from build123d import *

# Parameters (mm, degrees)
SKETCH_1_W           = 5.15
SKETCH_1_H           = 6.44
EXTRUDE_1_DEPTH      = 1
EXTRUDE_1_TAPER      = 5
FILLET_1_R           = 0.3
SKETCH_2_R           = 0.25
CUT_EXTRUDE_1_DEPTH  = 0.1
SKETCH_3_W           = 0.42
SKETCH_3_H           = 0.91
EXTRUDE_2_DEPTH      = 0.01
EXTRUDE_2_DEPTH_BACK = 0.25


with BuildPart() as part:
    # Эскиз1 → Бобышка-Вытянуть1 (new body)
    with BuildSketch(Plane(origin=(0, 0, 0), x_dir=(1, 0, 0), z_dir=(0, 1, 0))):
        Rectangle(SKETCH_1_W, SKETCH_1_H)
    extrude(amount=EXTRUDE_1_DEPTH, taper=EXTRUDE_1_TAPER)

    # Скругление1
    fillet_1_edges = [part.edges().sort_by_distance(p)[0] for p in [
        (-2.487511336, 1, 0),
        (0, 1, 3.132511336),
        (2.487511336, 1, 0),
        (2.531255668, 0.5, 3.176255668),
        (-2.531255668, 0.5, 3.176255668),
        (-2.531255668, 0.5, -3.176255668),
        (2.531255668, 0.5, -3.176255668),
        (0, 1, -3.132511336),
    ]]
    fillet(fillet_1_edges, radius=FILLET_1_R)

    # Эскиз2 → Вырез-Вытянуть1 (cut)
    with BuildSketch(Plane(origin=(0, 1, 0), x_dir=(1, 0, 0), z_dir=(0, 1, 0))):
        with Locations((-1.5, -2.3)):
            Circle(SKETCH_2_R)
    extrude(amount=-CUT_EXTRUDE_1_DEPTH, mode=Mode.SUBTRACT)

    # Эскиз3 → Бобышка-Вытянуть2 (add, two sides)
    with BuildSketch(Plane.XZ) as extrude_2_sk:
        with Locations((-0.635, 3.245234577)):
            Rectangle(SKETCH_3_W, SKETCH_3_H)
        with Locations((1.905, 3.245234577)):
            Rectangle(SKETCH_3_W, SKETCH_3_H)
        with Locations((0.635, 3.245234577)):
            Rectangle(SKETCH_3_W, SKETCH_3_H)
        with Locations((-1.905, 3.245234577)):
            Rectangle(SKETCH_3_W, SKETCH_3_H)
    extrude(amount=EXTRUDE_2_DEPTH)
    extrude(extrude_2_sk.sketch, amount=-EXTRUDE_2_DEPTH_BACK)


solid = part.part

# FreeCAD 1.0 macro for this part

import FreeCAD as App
import Part
import Sketcher
Q = App.Units.Quantity


def edges_at(feature, points):
    """Names of the edges that pass closest to the given points."""
    edges = feature.Shape.Edges
    near = lambda p: min(range(len(edges)), key=lambda i: edges[i].distToShape(Part.Vertex(*p))[0])
    return sorted({f"Edge{near(p) + 1}" for p in points})

doc = App.newDocument("Part")
body = doc.addObject("PartDesign::Body", "Body")

sketch1 = doc.addObject("Sketcher::SketchObject", "Sketch")
body.addObject(sketch1)
sketch1.AttachmentSupport = (doc.XZ_Plane, [""])
sketch1.MapMode = "FlatFace"
sketch1.addGeometry([
    Part.LineSegment(App.Vector(-2.575, -3.22, 0), App.Vector(-2.575, 3.22, 0)),
    Part.LineSegment(App.Vector(-2.575, 3.22, 0), App.Vector(2.575, 3.22, 0)),
    Part.LineSegment(App.Vector(2.575, 3.22, 0), App.Vector(2.575, -3.22, 0)),
    Part.LineSegment(App.Vector(2.575, -3.22, 0), App.Vector(-2.575, -3.22, 0)),
], False)
sketch1.addConstraint([
    Sketcher.Constraint("Coincident", 0, 2, 1, 1),
    Sketcher.Constraint("Coincident", 1, 2, 2, 1),
    Sketcher.Constraint("Coincident", 2, 2, 3, 1),
    Sketcher.Constraint("Coincident", 3, 2, 0, 1),
    Sketcher.Constraint("Vertical", 0),
    Sketcher.Constraint("Horizontal", 1),
    Sketcher.Constraint("Vertical", 2),
    Sketcher.Constraint("Horizontal", 3),
    Sketcher.Constraint("Symmetric", 0, 2, 2, 2, -1, 1),
    Sketcher.Constraint("DistanceX", 1, 1, 1, 2, Q("5.15 mm")),
    Sketcher.Constraint("DistanceY", 0, 1, 0, 2, Q("6.44 mm")),
])
pad1 = doc.addObject("PartDesign::Pad", "Pad")
body.addObject(pad1)
pad1.Profile = sketch1
pad1.Length = 1
pad1.Reversed = True
pad1.TaperAngle = -5
doc.recompute()

fillet = doc.addObject("PartDesign::Fillet", "Fillet")
body.addObject(fillet)
fillet.Base = (pad1, edges_at(pad1, [
    (-2.488, 1, 0),
    (0, 1, 3.133),
    (2.488, 1, 0),
    (2.531, 0.5, 3.176),
    (-2.531, 0.5, 3.176),
    (-2.531, 0.5, -3.176),
    (2.531, 0.5, -3.176),
    (0, 1, -3.133),
]))
fillet.Radius = 0.3

sketch2 = doc.addObject("Sketcher::SketchObject", "Sketch001")
body.addObject(sketch2)
sketch2.AttachmentSupport = (doc.XZ_Plane, [""])
sketch2.MapMode = "FlatFace"
sketch2.AttachmentOffset = App.Placement(App.Vector(0, 0, -1), App.Rotation())
sketch2.addGeometry(Part.Circle(App.Vector(-1.5, 2.3, 0), App.Vector(0, 0, 1), 0.25), False)
sketch2.addConstraint([
    Sketcher.Constraint("Diameter", 0, Q("0.5 mm")),
    Sketcher.Constraint("DistanceX", 0, 3, -1, 1, Q("1.5 mm")),
    Sketcher.Constraint("DistanceY", -1, 1, 0, 3, Q("2.3 mm")),
])
pocket1 = doc.addObject("PartDesign::Pocket", "Pocket")
body.addObject(pocket1)
pocket1.Profile = sketch2
pocket1.Length = 0.1
pocket1.Reversed = True

sketch3 = doc.addObject("Sketcher::SketchObject", "Sketch002")
body.addObject(sketch3)
sketch3.AttachmentSupport = (doc.XZ_Plane, [""])
sketch3.MapMode = "FlatFace"
sketch3.addGeometry([
    Part.LineSegment(App.Vector(-0.845, 3.700235, 0), App.Vector(-0.845, 2.790235, 0)),
    Part.LineSegment(App.Vector(-0.845, 2.790235, 0), App.Vector(-0.425, 2.790235, 0)),
    Part.LineSegment(App.Vector(-0.425, 2.790235, 0), App.Vector(-0.425, 3.700235, 0)),
    Part.LineSegment(App.Vector(-0.425, 3.700235, 0), App.Vector(-0.845, 3.700235, 0)),
    Part.LineSegment(App.Vector(1.695, 3.700235, 0), App.Vector(1.695, 2.790235, 0)),
    Part.LineSegment(App.Vector(1.695, 2.790235, 0), App.Vector(2.115, 2.790235, 0)),
    Part.LineSegment(App.Vector(2.115, 2.790235, 0), App.Vector(2.115, 3.700235, 0)),
    Part.LineSegment(App.Vector(2.115, 3.700235, 0), App.Vector(1.695, 3.700235, 0)),
    Part.LineSegment(App.Vector(0.425, 3.700235, 0), App.Vector(0.425, 2.790235, 0)),
    Part.LineSegment(App.Vector(0.425, 2.790235, 0), App.Vector(0.845, 2.790235, 0)),
    Part.LineSegment(App.Vector(0.845, 2.790235, 0), App.Vector(0.845, 3.700235, 0)),
    Part.LineSegment(App.Vector(0.845, 3.700235, 0), App.Vector(0.425, 3.700235, 0)),
    Part.LineSegment(App.Vector(-2.115, 3.700235, 0), App.Vector(-2.115, 2.790235, 0)),
    Part.LineSegment(App.Vector(-2.115, 2.790235, 0), App.Vector(-1.695, 2.790235, 0)),
    Part.LineSegment(App.Vector(-1.695, 2.790235, 0), App.Vector(-1.695, 3.700235, 0)),
    Part.LineSegment(App.Vector(-1.695, 3.700235, 0), App.Vector(-2.115, 3.700235, 0)),
], False)
sketch3.addConstraint([
    Sketcher.Constraint("Coincident", 0, 2, 1, 1),
    Sketcher.Constraint("Coincident", 1, 2, 2, 1),
    Sketcher.Constraint("Coincident", 2, 2, 3, 1),
    Sketcher.Constraint("Coincident", 3, 2, 0, 1),
    Sketcher.Constraint("Coincident", 4, 2, 5, 1),
    Sketcher.Constraint("Coincident", 5, 2, 6, 1),
    Sketcher.Constraint("Coincident", 6, 2, 7, 1),
    Sketcher.Constraint("Coincident", 7, 2, 4, 1),
    Sketcher.Constraint("Coincident", 8, 2, 9, 1),
    Sketcher.Constraint("Coincident", 9, 2, 10, 1),
    Sketcher.Constraint("Coincident", 10, 2, 11, 1),
    Sketcher.Constraint("Coincident", 11, 2, 8, 1),
    Sketcher.Constraint("Coincident", 12, 2, 13, 1),
    Sketcher.Constraint("Coincident", 13, 2, 14, 1),
    Sketcher.Constraint("Coincident", 14, 2, 15, 1),
    Sketcher.Constraint("Coincident", 15, 2, 12, 1),
    Sketcher.Constraint("Vertical", 0),
    Sketcher.Constraint("Horizontal", 1),
    Sketcher.Constraint("Vertical", 2),
    Sketcher.Constraint("Horizontal", 3),
    Sketcher.Constraint("Vertical", 4),
    Sketcher.Constraint("Horizontal", 5),
    Sketcher.Constraint("Vertical", 6),
    Sketcher.Constraint("Horizontal", 7),
    Sketcher.Constraint("Vertical", 8),
    Sketcher.Constraint("Horizontal", 9),
    Sketcher.Constraint("Vertical", 10),
    Sketcher.Constraint("Horizontal", 11),
    Sketcher.Constraint("Vertical", 12),
    Sketcher.Constraint("Horizontal", 13),
    Sketcher.Constraint("Vertical", 14),
    Sketcher.Constraint("Horizontal", 15),
    Sketcher.Constraint("Symmetric", 1, 2, 8, 2, -2),
    Sketcher.Constraint("Symmetric", 3, 2, 10, 2, -2),
    Sketcher.Constraint("Symmetric", 5, 2, 12, 2, -2),
    Sketcher.Constraint("Symmetric", 7, 2, 14, 2, -2),
    Sketcher.Constraint("Horizontal", 1, 2, 4, 2),
    Sketcher.Constraint("Horizontal", 3, 2, 6, 2),
    Sketcher.Constraint("Equal", 3, 5),
    Sketcher.Constraint("DistanceX", 1, 1, 1, 2, Q("0.42 mm")),
    Sketcher.Constraint("DistanceY", 0, 2, 0, 1, Q("0.91 mm")),
    Sketcher.Constraint("DistanceX", 1, 2, 4, 2, Q("2.12 mm")),
    Sketcher.Constraint("DistanceX", 1, 2, 8, 2, Q("0.85 mm")),
    Sketcher.Constraint("DistanceY", -1, 1, 0, 2, Q("2.790235 mm")),
])
pad2 = doc.addObject("PartDesign::Pad", "Pad001")
body.addObject(pad2)
pad2.Profile = sketch3
pad2.Type = "TwoLengths"
pad2.Length = 0.01
pad2.Length2 = 0.25

doc.recompute()
